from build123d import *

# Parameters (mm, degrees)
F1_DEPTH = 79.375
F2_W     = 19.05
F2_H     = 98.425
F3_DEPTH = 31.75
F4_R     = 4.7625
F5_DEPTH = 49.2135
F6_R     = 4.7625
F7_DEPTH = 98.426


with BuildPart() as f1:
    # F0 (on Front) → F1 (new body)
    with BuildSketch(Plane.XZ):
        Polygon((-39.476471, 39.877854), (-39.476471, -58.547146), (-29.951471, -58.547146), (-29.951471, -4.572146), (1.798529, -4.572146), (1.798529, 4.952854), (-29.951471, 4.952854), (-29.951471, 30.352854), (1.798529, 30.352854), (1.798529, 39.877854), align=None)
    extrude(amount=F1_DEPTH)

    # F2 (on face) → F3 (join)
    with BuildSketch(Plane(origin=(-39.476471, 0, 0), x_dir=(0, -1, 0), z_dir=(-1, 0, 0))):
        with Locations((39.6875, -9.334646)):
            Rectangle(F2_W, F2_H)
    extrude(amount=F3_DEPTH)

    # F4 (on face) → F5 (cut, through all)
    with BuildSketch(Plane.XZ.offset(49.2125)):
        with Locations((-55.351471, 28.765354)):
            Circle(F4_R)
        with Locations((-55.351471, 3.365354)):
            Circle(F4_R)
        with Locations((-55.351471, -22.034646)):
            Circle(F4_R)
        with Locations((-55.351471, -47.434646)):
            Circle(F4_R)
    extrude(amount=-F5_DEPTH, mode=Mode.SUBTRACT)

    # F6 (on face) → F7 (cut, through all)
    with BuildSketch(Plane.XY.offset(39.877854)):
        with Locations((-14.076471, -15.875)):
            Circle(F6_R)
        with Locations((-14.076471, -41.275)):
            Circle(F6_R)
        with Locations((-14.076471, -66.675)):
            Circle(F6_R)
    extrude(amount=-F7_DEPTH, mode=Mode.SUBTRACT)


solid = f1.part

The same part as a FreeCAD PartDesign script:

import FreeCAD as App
import Part
import Sketcher
Q = App.Units.Quantity


def add_polygon(sketch, points):
    """Adds a closed chain of lines whose ends are joined by coincident constraints."""
    first, n = sketch.GeometryCount, len(points)
    for a, b in zip(points, points[1:] + points[:1]):
        sketch.addGeometry(Part.LineSegment(App.Vector(*a, 0), App.Vector(*b, 0)), False)
    for i in range(n):
        sketch.addConstraint(Sketcher.Constraint("Coincident", first + i, 2, first + (i + 1) % n, 1))

doc = App.newDocument("Part")
body = doc.addObject("PartDesign::Body", "Body")

# Sketch on XZ plane
sketch1 = doc.addObject("Sketcher::SketchObject", "Sketch")
body.addObject(sketch1)
sketch1.AttachmentSupport = (doc.XZ_Plane, [""])
sketch1.MapMode = "FlatFace"
add_polygon(sketch1, [(-39, 40), (-39, -59), (-30, -59), (-30, -5), (2, -5), (2, 5), (-30, 5), (-30, 30), (2, 30), (2, 40)])  # lines 0-9
sketch1.addConstraint([
    Sketcher.Constraint("Vertical", 0),
    Sketcher.Constraint("Horizontal", 1),
    Sketcher.Constraint("Vertical", 2),
    Sketcher.Constraint("Horizontal", 3),
    Sketcher.Constraint("Vertical", 4),
    Sketcher.Constraint("Horizontal", 5),
    Sketcher.Constraint("Vertical", 6),
    Sketcher.Constraint("Horizontal", 7),
    Sketcher.Constraint("Vertical", 8),
    Sketcher.Constraint("Horizontal", 9),
    Sketcher.Constraint("Vertical", 2, 2, 5, 2),
    Sketcher.Constraint("Vertical", 4, 2, 7, 2),
    Sketcher.Constraint("Equal", 1, 4),
    Sketcher.Constraint("Equal", 4, 8),
    Sketcher.Constraint("DistanceY", 6, 1, 6, 2, Q("1 in")),
    Sketcher.Constraint("DistanceX", 3, 1, 3, 2, Q("1.25 in")),
    Sketcher.Constraint("DistanceY", 1, 2, 4, 2, Q("2.5 in")),
    Sketcher.Constraint("DistanceX", 1, 1, 1, 2, Q("0.375 in")),
    Sketcher.Constraint("DistanceX", 0, 2, -1, 1, Q("39.476471 mm")),
    Sketcher.Constraint("DistanceY", 0, 2, -1, 1, Q("58.547146 mm")),
])
pad1 = doc.addObject("PartDesign::Pad", "Pad")
body.addObject(pad1)
pad1.Profile = sketch1
pad1.Length = Q("3.125 in")

# Sketch on YZ plane
sketch2 = doc.addObject("Sketcher::SketchObject", "Sketch001")
body.addObject(sketch2)
sketch2.AttachmentSupport = (doc.YZ_Plane, [""])
sketch2.MapMode = "FlatFace"
sketch2.AttachmentOffset = App.Placement(App.Vector(0, 0, -39.476471), App.Rotation())
add_polygon(sketch2, [(-30, 40), (-30, -59), (-49, -59), (-49, 40)])  # lines 0-3
sketch2.addConstraint([
    Sketcher.Constraint("Vertical", 0),
    Sketcher.Constraint("Horizontal", 1),
    Sketcher.Constraint("Vertical", 2),
    Sketcher.Constraint("Horizontal", 3),
    Sketcher.Constraint("DistanceX", 1, 2, 1, 1, Q("0.75 in")),
    Sketcher.Constraint("DistanceY", 0, 2, 0, 1, Q("3.875 in")),
    Sketcher.Constraint("DistanceX", 0, 2, -1, 1, Q("1.1875 in")),
    Sketcher.Constraint("DistanceY", 0, 2, -1, 1, Q("58.547146 mm")),
])
pad2 = doc.addObject("PartDesign::Pad", "Pad001")
body.addObject(pad2)
pad2.Profile = sketch2
pad2.Length = Q("1.25 in")
pad2.Reversed = True

# Sketch on XZ plane
sketch3 = doc.addObject("Sketcher::SketchObject", "Sketch002")
body.addObject(sketch3)
sketch3.AttachmentSupport = (doc.XZ_Plane, [""])
sketch3.MapMode = "FlatFace"
sketch3.AttachmentOffset = App.Placement(App.Vector(0, 0, 1.9375 * 25.4), App.Rotation())
sketch3.addGeometry([
    Part.Circle(App.Vector(-55.4, 28.8, 0), App.Vector(0, 0, 1), 4.8),
    Part.Circle(App.Vector(-55.4, 3.4, 0), App.Vector(0, 0, 1), 4.8),
    Part.Circle(App.Vector(-55.4, -22, 0), App.Vector(0, 0, 1), 4.8),
    Part.Circle(App.Vector(-55.4, -47.4, 0), App.Vector(0, 0, 1), 4.8),
], False)
sketch3.addConstraint([
    Sketcher.Constraint("Equal", 0, 1),
    Sketcher.Constraint("Equal", 1, 2),
    Sketcher.Constraint("Equal", 2, 3),
    Sketcher.Constraint("Vertical", 0, 3, 1, 3),
    Sketcher.Constraint("Vertical", 1, 3, 2, 3),
    Sketcher.Constraint("Vertical", 2, 3, 3, 3),
    Sketcher.Constraint("Diameter", 0, Q("0.375 in")),
    Sketcher.Constraint("DistanceY", 1, 3, 0, 3, Q("1 in")),
    Sketcher.Constraint("DistanceY", 2, 3, 1, 3, Q("1 in")),
    Sketcher.Constraint("DistanceY", 3, 3, 2, 3, Q("1 in")),
    Sketcher.Constraint("DistanceX", 0, 3, -1, 1, Q("55.351471 mm")),
    Sketcher.Constraint("DistanceY", -1, 1, 0, 3, Q("28.765354 mm")),
])
pocket1 = doc.addObject("PartDesign::Pocket", "Pocket")
body.addObject(pocket1)
pocket1.Profile = sketch3
pocket1.Type = "ThroughAll"

# Sketch on XY plane
sketch4 = doc.addObject("Sketcher::SketchObject", "Sketch003")
body.addObject(sketch4)
sketch4.AttachmentSupport = (doc.XY_Plane, [""])
sketch4.MapMode = "FlatFace"
sketch4.AttachmentOffset = App.Placement(App.Vector(0, 0, 39.877854), App.Rotation())
sketch4.addGeometry([
    Part.Circle(App.Vector(-14.1, -15.9, 0), App.Vector(0, 0, 1), 4.8),
    Part.Circle(App.Vector(-14.1, -41.3, 0), App.Vector(0, 0, 1), 4.8),
    Part.Circle(App.Vector(-14.1, -66.7, 0), App.Vector(0, 0, 1), 4.8),
], False)
sketch4.addConstraint([
    Sketcher.Constraint("Equal", 0, 1),
    Sketcher.Constraint("Equal", 1, 2),
    Sketcher.Constraint("Vertical", 0, 3, 1, 3),
    Sketcher.Constraint("Vertical", 1, 3, 2, 3),
    Sketcher.Constraint("Diameter", 0, Q("0.375 in")),
    Sketcher.Constraint("DistanceY", 1, 3, 0, 3, Q("1 in")),
    Sketcher.Constraint("DistanceY", 2, 3, 1, 3, Q("1 in")),
    Sketcher.Constraint("DistanceY", 0, 3, -1, 1, Q("0.625 in")),
    Sketcher.Constraint("DistanceX", 0, 3, -1, 1, Q("14.076471 mm")),
])
pocket2 = doc.addObject("PartDesign::Pocket", "Pocket001")
body.addObject(pocket2)
pocket2.Profile = sketch4
pocket2.Type = "ThroughAll"

doc.recompute()
